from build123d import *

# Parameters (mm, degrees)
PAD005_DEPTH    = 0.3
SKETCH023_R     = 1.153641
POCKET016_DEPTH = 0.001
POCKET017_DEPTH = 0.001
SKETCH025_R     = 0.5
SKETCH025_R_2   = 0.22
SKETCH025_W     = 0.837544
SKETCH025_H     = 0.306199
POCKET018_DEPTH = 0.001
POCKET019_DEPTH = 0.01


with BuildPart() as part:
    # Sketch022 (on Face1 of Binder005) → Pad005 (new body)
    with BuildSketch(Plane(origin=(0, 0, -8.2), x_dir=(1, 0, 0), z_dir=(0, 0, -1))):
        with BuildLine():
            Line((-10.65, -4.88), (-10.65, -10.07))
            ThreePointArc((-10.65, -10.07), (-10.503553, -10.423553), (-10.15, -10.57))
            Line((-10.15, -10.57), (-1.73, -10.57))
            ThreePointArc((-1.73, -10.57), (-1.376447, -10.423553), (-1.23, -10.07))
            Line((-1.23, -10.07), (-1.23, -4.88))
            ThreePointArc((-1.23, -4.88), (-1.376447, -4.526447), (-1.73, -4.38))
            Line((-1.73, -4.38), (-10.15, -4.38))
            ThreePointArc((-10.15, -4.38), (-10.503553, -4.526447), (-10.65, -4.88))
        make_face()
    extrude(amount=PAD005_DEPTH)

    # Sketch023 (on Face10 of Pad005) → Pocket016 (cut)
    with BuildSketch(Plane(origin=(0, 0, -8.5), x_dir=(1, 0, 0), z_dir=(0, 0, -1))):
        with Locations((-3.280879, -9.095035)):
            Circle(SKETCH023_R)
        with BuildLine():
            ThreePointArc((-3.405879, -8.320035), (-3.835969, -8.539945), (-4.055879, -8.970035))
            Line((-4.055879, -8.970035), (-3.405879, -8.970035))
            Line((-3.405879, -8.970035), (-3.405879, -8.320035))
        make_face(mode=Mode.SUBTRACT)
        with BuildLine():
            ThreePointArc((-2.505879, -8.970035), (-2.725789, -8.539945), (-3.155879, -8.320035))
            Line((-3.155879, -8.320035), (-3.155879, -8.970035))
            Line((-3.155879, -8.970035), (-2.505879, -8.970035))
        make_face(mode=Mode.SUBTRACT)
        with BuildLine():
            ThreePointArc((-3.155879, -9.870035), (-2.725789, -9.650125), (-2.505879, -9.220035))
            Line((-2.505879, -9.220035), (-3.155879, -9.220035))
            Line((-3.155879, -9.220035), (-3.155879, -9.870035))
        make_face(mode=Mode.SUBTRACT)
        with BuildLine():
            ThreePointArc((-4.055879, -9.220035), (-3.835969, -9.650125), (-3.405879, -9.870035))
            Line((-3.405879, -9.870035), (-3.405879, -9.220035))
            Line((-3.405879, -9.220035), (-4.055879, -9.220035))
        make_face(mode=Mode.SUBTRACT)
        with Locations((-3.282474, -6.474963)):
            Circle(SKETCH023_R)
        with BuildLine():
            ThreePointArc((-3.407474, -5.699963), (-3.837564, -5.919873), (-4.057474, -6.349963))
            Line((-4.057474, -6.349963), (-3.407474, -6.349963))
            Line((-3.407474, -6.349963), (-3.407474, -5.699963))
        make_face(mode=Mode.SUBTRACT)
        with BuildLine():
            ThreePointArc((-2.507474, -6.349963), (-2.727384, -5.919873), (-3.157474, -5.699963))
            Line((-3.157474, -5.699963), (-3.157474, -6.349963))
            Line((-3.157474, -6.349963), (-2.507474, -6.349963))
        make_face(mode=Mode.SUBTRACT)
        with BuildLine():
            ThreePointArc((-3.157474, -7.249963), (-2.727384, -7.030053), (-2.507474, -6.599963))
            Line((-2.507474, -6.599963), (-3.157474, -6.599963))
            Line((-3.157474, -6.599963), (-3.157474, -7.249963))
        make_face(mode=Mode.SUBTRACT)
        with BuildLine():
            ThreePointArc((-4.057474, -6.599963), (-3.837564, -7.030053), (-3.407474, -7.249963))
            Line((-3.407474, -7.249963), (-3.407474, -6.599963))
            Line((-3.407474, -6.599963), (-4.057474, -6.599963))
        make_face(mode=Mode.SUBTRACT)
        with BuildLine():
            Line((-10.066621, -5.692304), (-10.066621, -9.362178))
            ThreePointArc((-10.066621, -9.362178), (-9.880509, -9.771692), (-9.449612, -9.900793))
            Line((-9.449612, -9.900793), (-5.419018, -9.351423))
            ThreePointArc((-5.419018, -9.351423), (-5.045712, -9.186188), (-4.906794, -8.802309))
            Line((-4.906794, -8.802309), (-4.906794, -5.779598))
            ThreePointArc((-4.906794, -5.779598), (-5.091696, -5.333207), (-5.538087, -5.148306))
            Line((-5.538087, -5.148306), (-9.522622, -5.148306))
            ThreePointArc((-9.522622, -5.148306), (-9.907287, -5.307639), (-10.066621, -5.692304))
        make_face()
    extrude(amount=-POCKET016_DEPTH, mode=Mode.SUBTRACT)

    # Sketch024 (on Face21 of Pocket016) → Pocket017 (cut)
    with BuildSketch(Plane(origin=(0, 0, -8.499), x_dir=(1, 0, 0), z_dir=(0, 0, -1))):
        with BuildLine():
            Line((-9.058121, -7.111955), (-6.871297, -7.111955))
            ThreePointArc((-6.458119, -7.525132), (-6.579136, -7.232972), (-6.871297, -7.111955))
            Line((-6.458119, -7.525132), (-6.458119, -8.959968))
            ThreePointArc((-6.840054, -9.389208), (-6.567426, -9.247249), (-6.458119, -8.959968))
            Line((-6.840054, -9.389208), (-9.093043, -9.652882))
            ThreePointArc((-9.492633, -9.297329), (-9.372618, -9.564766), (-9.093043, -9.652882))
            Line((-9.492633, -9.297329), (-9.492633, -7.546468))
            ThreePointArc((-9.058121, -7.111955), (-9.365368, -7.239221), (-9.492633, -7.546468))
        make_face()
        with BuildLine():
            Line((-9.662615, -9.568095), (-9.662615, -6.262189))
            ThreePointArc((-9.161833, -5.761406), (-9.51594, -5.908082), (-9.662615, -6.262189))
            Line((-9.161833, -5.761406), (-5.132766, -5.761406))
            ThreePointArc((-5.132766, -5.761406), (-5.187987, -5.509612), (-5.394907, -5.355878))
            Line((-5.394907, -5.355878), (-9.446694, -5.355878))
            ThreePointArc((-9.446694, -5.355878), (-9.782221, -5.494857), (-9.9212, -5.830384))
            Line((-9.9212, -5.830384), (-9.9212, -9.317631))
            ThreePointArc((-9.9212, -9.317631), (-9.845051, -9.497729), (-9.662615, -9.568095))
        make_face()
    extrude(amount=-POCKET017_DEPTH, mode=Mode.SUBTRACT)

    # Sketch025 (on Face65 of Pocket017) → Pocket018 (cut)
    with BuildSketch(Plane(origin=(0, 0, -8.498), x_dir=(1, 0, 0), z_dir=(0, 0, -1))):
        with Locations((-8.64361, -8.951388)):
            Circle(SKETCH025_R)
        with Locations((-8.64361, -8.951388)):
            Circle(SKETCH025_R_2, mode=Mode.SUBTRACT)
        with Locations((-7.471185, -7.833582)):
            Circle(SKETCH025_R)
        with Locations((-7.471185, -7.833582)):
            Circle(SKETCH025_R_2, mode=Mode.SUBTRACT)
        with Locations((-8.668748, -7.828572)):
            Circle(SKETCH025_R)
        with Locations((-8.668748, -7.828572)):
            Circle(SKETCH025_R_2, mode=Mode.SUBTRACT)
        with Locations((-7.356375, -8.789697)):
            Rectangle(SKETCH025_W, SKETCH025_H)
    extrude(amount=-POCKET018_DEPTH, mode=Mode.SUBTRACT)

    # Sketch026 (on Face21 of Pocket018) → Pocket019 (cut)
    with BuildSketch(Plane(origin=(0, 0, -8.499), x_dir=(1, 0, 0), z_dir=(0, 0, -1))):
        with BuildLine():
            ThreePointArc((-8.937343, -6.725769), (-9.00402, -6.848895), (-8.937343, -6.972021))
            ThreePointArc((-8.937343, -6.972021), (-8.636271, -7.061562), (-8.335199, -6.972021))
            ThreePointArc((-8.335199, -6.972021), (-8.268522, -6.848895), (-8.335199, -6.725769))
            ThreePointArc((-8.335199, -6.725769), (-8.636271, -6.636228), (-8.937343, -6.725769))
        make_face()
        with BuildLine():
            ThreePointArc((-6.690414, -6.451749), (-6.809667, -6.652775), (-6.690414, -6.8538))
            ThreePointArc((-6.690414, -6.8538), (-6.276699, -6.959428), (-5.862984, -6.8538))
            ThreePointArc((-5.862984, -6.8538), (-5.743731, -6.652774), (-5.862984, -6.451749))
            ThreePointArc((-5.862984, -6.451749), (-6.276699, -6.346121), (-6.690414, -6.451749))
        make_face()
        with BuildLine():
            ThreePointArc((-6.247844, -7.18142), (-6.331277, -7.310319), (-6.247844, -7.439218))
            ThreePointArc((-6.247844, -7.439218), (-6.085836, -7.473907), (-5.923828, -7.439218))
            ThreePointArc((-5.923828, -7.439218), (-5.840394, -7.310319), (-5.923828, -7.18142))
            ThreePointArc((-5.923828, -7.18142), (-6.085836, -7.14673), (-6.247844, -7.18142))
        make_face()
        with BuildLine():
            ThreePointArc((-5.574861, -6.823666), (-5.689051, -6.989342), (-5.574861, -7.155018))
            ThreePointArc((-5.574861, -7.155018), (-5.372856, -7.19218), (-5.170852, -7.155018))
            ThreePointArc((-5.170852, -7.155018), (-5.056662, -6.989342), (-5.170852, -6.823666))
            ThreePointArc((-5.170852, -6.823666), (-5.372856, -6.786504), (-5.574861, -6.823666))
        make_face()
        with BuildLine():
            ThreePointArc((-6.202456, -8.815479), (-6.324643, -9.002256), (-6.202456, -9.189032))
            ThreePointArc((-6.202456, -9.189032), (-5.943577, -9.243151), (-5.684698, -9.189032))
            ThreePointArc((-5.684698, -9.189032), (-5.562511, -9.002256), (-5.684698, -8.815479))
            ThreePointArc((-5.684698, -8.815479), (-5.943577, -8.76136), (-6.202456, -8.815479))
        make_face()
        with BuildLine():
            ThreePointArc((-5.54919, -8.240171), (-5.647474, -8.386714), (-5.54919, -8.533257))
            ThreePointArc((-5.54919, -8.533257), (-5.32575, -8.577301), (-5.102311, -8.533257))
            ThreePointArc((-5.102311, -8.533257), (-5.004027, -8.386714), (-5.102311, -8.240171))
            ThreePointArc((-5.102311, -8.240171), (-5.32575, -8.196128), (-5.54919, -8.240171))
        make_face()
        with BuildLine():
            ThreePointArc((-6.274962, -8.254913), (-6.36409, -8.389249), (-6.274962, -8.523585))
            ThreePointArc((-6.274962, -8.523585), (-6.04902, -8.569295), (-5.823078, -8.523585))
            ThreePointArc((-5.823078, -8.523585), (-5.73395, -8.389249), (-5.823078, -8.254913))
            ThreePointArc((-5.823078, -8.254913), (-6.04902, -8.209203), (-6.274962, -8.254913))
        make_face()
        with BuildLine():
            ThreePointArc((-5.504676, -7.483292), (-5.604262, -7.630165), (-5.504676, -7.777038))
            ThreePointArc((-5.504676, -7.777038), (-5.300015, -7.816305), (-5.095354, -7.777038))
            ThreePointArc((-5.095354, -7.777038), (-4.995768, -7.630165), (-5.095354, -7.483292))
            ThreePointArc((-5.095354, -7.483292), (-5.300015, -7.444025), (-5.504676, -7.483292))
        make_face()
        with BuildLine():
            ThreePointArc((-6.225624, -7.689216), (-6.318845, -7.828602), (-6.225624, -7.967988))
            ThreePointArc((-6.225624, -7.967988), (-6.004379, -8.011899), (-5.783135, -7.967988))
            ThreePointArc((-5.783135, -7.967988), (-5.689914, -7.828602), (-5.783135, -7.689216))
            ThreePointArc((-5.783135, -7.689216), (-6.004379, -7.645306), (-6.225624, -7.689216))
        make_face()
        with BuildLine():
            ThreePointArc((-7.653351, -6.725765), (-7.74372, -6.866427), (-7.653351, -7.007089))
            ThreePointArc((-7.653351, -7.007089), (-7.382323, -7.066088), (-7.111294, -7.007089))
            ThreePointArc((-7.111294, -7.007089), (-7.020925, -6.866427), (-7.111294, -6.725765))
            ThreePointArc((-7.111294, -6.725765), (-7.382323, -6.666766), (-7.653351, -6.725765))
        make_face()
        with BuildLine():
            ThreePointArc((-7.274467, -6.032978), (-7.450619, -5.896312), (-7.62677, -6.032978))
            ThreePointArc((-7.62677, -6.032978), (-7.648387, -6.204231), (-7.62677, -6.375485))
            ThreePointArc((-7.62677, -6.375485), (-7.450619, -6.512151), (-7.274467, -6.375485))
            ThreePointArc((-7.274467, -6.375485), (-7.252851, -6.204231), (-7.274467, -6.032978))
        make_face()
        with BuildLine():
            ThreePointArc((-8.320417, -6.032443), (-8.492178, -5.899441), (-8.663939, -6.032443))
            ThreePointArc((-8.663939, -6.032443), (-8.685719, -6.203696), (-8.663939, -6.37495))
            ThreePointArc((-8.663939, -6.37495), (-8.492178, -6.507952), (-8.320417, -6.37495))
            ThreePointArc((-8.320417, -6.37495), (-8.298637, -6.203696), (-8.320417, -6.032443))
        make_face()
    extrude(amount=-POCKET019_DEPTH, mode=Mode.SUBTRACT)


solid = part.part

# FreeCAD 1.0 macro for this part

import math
import FreeCAD as App
import Part
import Sketcher

V = App.Vector
Q = App.Units.Quantity

doc = App.newDocument("Part")
body = doc.addObject("PartDesign::Body", "Body")

sketch1 = doc.addObject("Sketcher::SketchObject", "Sketch")
body.addObject(sketch1)
sketch1.AttachmentSupport = (doc.XY_Plane, [""])
sketch1.MapMode = "FlatFace"
sketch1.AttachmentOffset = App.Placement(V(0, 0, -8.2), App.Rotation())
sketch1.addGeometry([
    Part.LineSegment(V(-10.7, 4.9, 0), V(-10.7, 10.1, 0)),
    Part.ArcOfCircle(Part.Circle(V(-10.1, 10.1, 0), V(0, 0, 1), 0.5), math.radians(90), math.radians(180)),
    Part.LineSegment(V(-10.2, 10.6, 0), V(-1.7, 10.6, 0)),
    Part.ArcOfCircle(Part.Circle(V(-1.7, 10.1, 0), V(0, 0, 1), 0.5), math.radians(0), math.radians(90)),
    Part.LineSegment(V(-1.2, 10.1, 0), V(-1.2, 4.9, 0)),
    Part.ArcOfCircle(Part.Circle(V(-1.7, 4.9, 0), V(0, 0, 1), 0.5), math.radians(-90), math.radians(0)),
    Part.LineSegment(V(-1.7, 4.4, 0), V(-10.2, 4.4, 0)),
    Part.ArcOfCircle(Part.Circle(V(-10.1, 4.9, 0), V(0, 0, 1), 0.5), math.radians(-180), math.radians(-90)),
], False)
sketch1.addConstraint([
    Sketcher.Constraint("Coincident", 0, 2, 1, 2),
    Sketcher.Constraint("Coincident", 1, 1, 2, 1),
    Sketcher.Constraint("Coincident", 2, 2, 3, 2),
    Sketcher.Constraint("Coincident", 3, 1, 4, 1),
    Sketcher.Constraint("Coincident", 4, 2, 5, 2),
    Sketcher.Constraint("Coincident", 5, 1, 6, 1),
    Sketcher.Constraint("Coincident", 6, 2, 7, 2),
    Sketcher.Constraint("Coincident", 7, 1, 0, 1),
    Sketcher.Constraint("Vertical", 0),
    Sketcher.Constraint("Horizontal", 2),
    Sketcher.Constraint("Vertical", 4),
    Sketcher.Constraint("Horizontal", 6),
    Sketcher.Constraint("Equal", 1, 3),
    Sketcher.Constraint("Equal", 3, 5),
    Sketcher.Constraint("Equal", 5, 7),
    Sketcher.Constraint("Horizontal", 3, 3, 0, 2),
    Sketcher.Constraint("Horizontal", 0, 2, 3, 1),
    Sketcher.Constraint("Horizontal", 7, 3, 4, 2),
    Sketcher.Constraint("Horizontal", 4, 2, 7, 1),
    Sketcher.Constraint("Vertical", 7, 3, 1, 1),
    Sketcher.Constraint("Vertical", 5, 3, 2, 2),
    Sketcher.Constraint("Vertical", 2, 2, 5, 1),
    Sketcher.Constraint("Vertical", 1, 1, 6, 2),
    Sketcher.Constraint("Radius", 1, Q("0.500001 mm")),
    Sketcher.Constraint("DistanceX", 2, 1, 2, 2, Q("8.42 mm")),
    Sketcher.Constraint("DistanceY", 0, 1, 0, 2, Q("5.19 mm")),
    Sketcher.Constraint("DistanceX", 1, 3, -1, 1, Q("10.149999 mm")),
    Sketcher.Constraint("DistanceY", -1, 1, 1, 3, Q("10.069999 mm")),
])
pad1 = doc.addObject("PartDesign::Pad", "Pad")
body.addObject(pad1)
pad1.Profile = sketch1
pad1.Length = 0.3
pad1.Reversed = True

sketch2 = doc.addObject("Sketcher::SketchObject", "Sketch001")
body.addObject(sketch2)
sketch2.AttachmentSupport = (doc.XY_Plane, [""])
sketch2.MapMode = "FlatFace"
sketch2.AttachmentOffset = App.Placement(V(0, 0, -8.5), App.Rotation())
sketch2.addGeometry([
    Part.Circle(V(-3.3, 9.1, 0), V(0, 0, 1), 1.2),
    Part.ArcOfCircle(Part.Circle(V(-3.3, 9.1, 0), V(0, 0, 1), 0.8), math.radians(99), math.radians(171)),
    Part.LineSegment(V(-4.1, 9.2, 0), V(-3.4, 9.2, 0)),
    Part.LineSegment(V(-3.4, 9.2, 0), V(-3.4, 9.9, 0)),
    Part.ArcOfCircle(Part.Circle(V(-3.3, 9.1, 0), V(0, 0, 1), 0.8), math.radians(9), math.radians(81)),
    Part.LineSegment(V(-3.2, 9.9, 0), V(-3.2, 9.2, 0)),
    Part.LineSegment(V(-3.2, 9.2, 0), V(-2.5, 9.2, 0)),
    Part.ArcOfCircle(Part.Circle(V(-3.3, 9.1, 0), V(0, 0, 1), 0.8), math.radians(-171), math.radians(-99)),
    Part.LineSegment(V(-3.4, 8.3, 0), V(-3.4, 9, 0)),
    Part.LineSegment(V(-3.4, 9, 0), V(-4.1, 9, 0)),
    Part.ArcOfCircle(Part.Circle(V(-3.3, 9.1, 0), V(0, 0, 1), 0.8), math.radians(-81), math.radians(-9)),
    Part.LineSegment(V(-2.5, 9, 0), V(-3.2, 9, 0)),
    Part.LineSegment(V(-3.2, 9, 0), V(-3.2, 8.3, 0)),
    Part.Circle(V(-3.3, 6.5, 0), V(0, 0, 1), 1.2),
    Part.ArcOfCircle(Part.Circle(V(-3.3, 6.5, 0), V(0, 0, 1), 0.8), math.radians(99), math.radians(171)),
    Part.LineSegment(V(-4.1, 6.6, 0), V(-3.4, 6.6, 0)),
    Part.LineSegment(V(-3.4, 6.6, 0), V(-3.4, 7.2, 0)),
    Part.ArcOfCircle(Part.Circle(V(-3.3, 6.5, 0), V(0, 0, 1), 0.8), math.radians(9), math.radians(81)),
    Part.LineSegment(V(-3.2, 7.2, 0), V(-3.2, 6.6, 0)),
    Part.LineSegment(V(-3.2, 6.6, 0), V(-2.5, 6.6, 0)),
    Part.ArcOfCircle(Part.Circle(V(-3.3, 6.5, 0), V(0, 0, 1), 0.8), math.radians(-171), math.radians(-99)),
    Part.LineSegment(V(-3.4, 5.7, 0), V(-3.4, 6.3, 0)),
    Part.LineSegment(V(-3.4, 6.3, 0), V(-4.1, 6.3, 0)),
    Part.ArcOfCircle(Part.Circle(V(-3.3, 6.5, 0), V(0, 0, 1), 0.8), math.radians(-81), math.radians(-9)),
    Part.LineSegment(V(-2.5, 6.3, 0), V(-3.2, 6.3, 0)),
    Part.LineSegment(V(-3.2, 6.3, 0), V(-3.2, 5.7, 0)),
    Part.LineSegment(V(-10.1, 5.7, 0), V(-10.1, 9.4, 0)),
    Part.ArcOfCircle(Part.Circle(V(-9.5, 9.4, 0), V(0, 0, 1), 0.5), math.radians(82), math.radians(180)),
    Part.LineSegment(V(-9.4, 9.9, 0), V(-5.4, 9.4, 0)),
    Part.ArcOfCircle(Part.Circle(V(-5.4, 8.8, 0), V(0, 0, 1), 0.5), math.radians(-3), math.radians(89)),
    Part.LineSegment(V(-4.9, 8.8, 0), V(-4.9, 5.8, 0)),
    Part.ArcOfCircle(Part.Circle(V(-5.5, 5.8, 0), V(0, 0, 1), 0.6), math.radians(-90), math.radians(0)),
    Part.LineSegment(V(-5.5, 5.1, 0), V(-9.5, 5.1, 0)),
    Part.ArcOfCircle(Part.Circle(V(-9.5, 5.7, 0), V(0, 0, 1), 0.5), math.radians(-180), math.radians(-90)),
], False)
sketch2.addConstraint([
    Sketcher.Constraint("Coincident", 1, 2, 2, 1),
    Sketcher.Constraint("Coincident", 2, 2, 3, 1),
    Sketcher.Constraint("Coincident", 3, 2, 1, 1),
    Sketcher.Constraint("Coincident", 4, 2, 5, 1),
    Sketcher.Constraint("Coincident", 5, 2, 6, 1),
    Sketcher.Constraint("Coincident", 6, 2, 4, 1),
    Sketcher.Constraint("Coincident", 7, 2, 8, 1),
    Sketcher.Constraint("Coincident", 8, 2, 9, 1),
    Sketcher.Constraint("Coincident", 9, 2, 7, 1),
    Sketcher.Constraint("Coincident", 10, 2, 11, 1),
    Sketcher.Constraint("Coincident", 11, 2, 12, 1),
    Sketcher.Constraint("Coincident", 12, 2, 10, 1),
    Sketcher.Constraint("Coincident", 14, 2, 15, 1),
    Sketcher.Constraint("Coincident", 15, 2, 16, 1),
    Sketcher.Constraint("Coincident", 16, 2, 14, 1),
    Sketcher.Constraint("Coincident", 17, 2, 18, 1),
    Sketcher.Constraint("Coincident", 18, 2, 19, 1),
    Sketcher.Constraint("Coincident", 19, 2, 17, 1),
    Sketcher.Constraint("Coincident", 20, 2, 21, 1),
    Sketcher.Constraint("Coincident", 21, 2, 22, 1),
    Sketcher.Constraint("Coincident", 22, 2, 20, 1),
    Sketcher.Constraint("Coincident", 23, 2, 24, 1),
    Sketcher.Constraint("Coincident", 24, 2, 25, 1),
    Sketcher.Constraint("Coincident", 25, 2, 23, 1),
    Sketcher.Constraint("Tangent", 26, 2, 27, 2),
    Sketcher.Constraint("Tangent", 27, 1, 28, 1),
    Sketcher.Constraint("Coincident", 28, 2, 29, 2),
    Sketcher.Constraint("Coincident", 29, 1, 30, 1),
    Sketcher.Constraint("Tangent", 30, 2, 31, 2),
    Sketcher.Constraint("Tangent", 31, 1, 32, 1),
    Sketcher.Constraint("Tangent", 32, 2, 33, 2),
    Sketcher.Constraint("Tangent", 33, 1, 26, 1),
    Sketcher.Constraint("Horizontal", 2),
    Sketcher.Constraint("Vertical", 3),
    Sketcher.Constraint("Vertical", 5),
    Sketcher.Constraint("Horizontal", 6),
    Sketcher.Constraint("Vertical", 8),
    Sketcher.Constraint("Horizontal", 9),
    Sketcher.Constraint("Horizontal", 11),
    Sketcher.Constraint("Vertical", 12),
    Sketcher.Constraint("Horizontal", 15),
    Sketcher.Constraint("Vertical", 16),
    Sketcher.Constraint("Vertical", 18),
    Sketcher.Constraint("Horizontal", 19),
    Sketcher.Constraint("Vertical", 21),
    Sketcher.Constraint("Horizontal", 22),
    Sketcher.Constraint("Horizontal", 24),
    Sketcher.Constraint("Vertical", 25),
    Sketcher.Constraint("Vertical", 26),
    Sketcher.Constraint("Vertical", 30),
    Sketcher.Constraint("Horizontal", 32),
    Sketcher.Constraint("Coincident", 1, 3, 0, 3),
    Sketcher.Constraint("Coincident", 4, 3, 0, 3),
    Sketcher.Constraint("Coincident", 7, 3, 0, 3),
    Sketcher.Constraint("Coincident", 10, 3, 0, 3),
    Sketcher.Constraint("Coincident", 14, 3, 13, 3),
    Sketcher.Constraint("Coincident", 17, 3, 13, 3),
    Sketcher.Constraint("Coincident", 20, 3, 13, 3),
    Sketcher.Constraint("Coincident", 23, 3, 13, 3),
    Sketcher.Constraint("Equal", 1, 4),
    Sketcher.Constraint("Equal", 4, 7),
    Sketcher.Constraint("Equal", 7, 10),
    Sketcher.Constraint("Equal", 0, 13),
    Sketcher.Constraint("Equal", 10, 14),
    Sketcher.Constraint("Equal", 14, 17),
    Sketcher.Constraint("Equal", 17, 20),
    Sketcher.Constraint("Equal", 20, 23),
    Sketcher.Constraint("Horizontal", 3, 2, 4, 2),
    Sketcher.Constraint("Horizontal", 2, 2, 5, 2),
    Sketcher.Constraint("Horizontal", 9, 2, 10, 2),
    Sketcher.Constraint("Horizontal", 7, 2, 12, 2),
    Sketcher.Constraint("Horizontal", 16, 2, 17, 2),
    Sketcher.Constraint("Horizontal", 15, 2, 18, 2),
    Sketcher.Constraint("Horizontal", 22, 2, 23, 2),
    Sketcher.Constraint("Horizontal", 20, 2, 25, 2),
    Sketcher.Constraint("Vertical", 3, 2, 7, 2),
    Sketcher.Constraint("Vertical", 1, 2, 9, 2),
    Sketcher.Constraint("Vertical", 16, 2, 20, 2),
    Sketcher.Constraint("Vertical", 14, 2, 22, 2),
    Sketcher.Constraint("Equal", 11, 15),
    Sketcher.Constraint("Equal", 24, 3),
    Sketcher.Constraint("Equal", 12, 16),
    Sketcher.Constraint("Radius", 33, Q("0.543999 mm")),
    Sketcher.Constraint("DistanceX", 2, 1, 2, 2, Q("0.65 mm")),
    Sketcher.Constraint("Diameter", 0, Q("2.307282 mm")),
    Sketcher.Constraint("DistanceX", 3, 2, 4, 2, Q("0.25 mm")),
    Sketcher.Constraint("Radius", 27, Q("0.543595 mm")),
    Sketcher.Constraint("Radius", 29, Q("0.519945 mm")),
    Sketcher.Constraint("Radius", 31, Q("0.631293 mm")),
    Sketcher.Constraint("DistanceY", 30, 2, 30, 1, Q("3.022711 mm")),
    Sketcher.Constraint("DistanceY", -1, 1, 31, 3, Q("5.779599 mm")),
    Sketcher.Constraint("DistanceX", 29, 3, 28, 2, Q("0.006899 mm")),
    Sketcher.Constraint("Distance", 28, Q("4.067861 mm")),
    Sketcher.Constraint("DistanceX", 32, 2, 32, 1, Q("3.984535 mm")),
    Sketcher.Constraint("DistanceY", 26, 1, 26, 2, Q("3.669874 mm")),
    Sketcher.Constraint("DistanceX", 0, 3, -1, 1, Q("3.280879 mm")),
    Sketcher.Constraint("DistanceX", 26, 2, -1, 1, Q("10.066621 mm")),
    Sketcher.Constraint("DistanceY", 13, 3, 4, 3, Q("2.620072 mm")),
    Sketcher.Constraint("DistanceY", 29, 3, 4, 3, Q("0.26351 mm")),
    Sketcher.Constraint("DistanceX", 30, 2, 22, 2, Q("0.84932 mm")),
])
pocket1 = doc.addObject("PartDesign::Pocket", "Pocket")
body.addObject(pocket1)
pocket1.Profile = sketch2
pocket1.Length = 0.001
pocket1.Reversed = True

sketch3 = doc.addObject("Sketcher::SketchObject", "Sketch002")
body.addObject(sketch3)
sketch3.AttachmentSupport = (doc.XY_Plane, [""])
sketch3.MapMode = "FlatFace"
sketch3.AttachmentOffset = App.Placement(V(0, 0, -8.499), App.Rotation())
sketch3.addGeometry([
    Part.LineSegment(V(-6.87, 7.11, 0), V(-9.06, 7.11, 0)),
    Part.ArcOfCircle(Part.Circle(V(-9.06, 7.55, 0), V(0, 0, 1), 0.43), math.radians(180), math.radians(270)),
    Part.LineSegment(V(-9.49, 7.55, 0), V(-9.49, 9.3, 0)),
    Part.ArcOfCircle(Part.Circle(V(-9.13, 9.3, 0), V(0, 0, 1), 0.36), math.radians(83), math.radians(180)),
    Part.LineSegment(V(-9.09, 9.65, 0), V(-6.84, 9.39, 0)),
    Part.ArcOfCircle(Part.Circle(V(-6.89, 8.96, 0), V(0, 0, 1), 0.43), math.radians(0), math.radians(83)),
    Part.LineSegment(V(-6.46, 8.96, 0), V(-6.46, 7.53, 0)),
    Part.ArcOfCircle(Part.Circle(V(-6.87, 7.53, 0), V(0, 0, 1), 0.41), math.radians(-90), math.radians(0)),
    Part.LineSegment(V(-9.66, 9.57, 0), V(-9.66, 6.26, 0)),
    Part.ArcOfCircle(Part.Circle(V(-9.16, 6.26, 0), V(0, 0, 1), 0.5), math.radians(180), math.radians(270)),
    Part.LineSegment(V(-9.16, 5.76, 0), V(-5.13, 5.76, 0)),
    Part.ArcOfCircle(Part.Circle(V(-5.5, 5.71, 0), V(0, 0, 1), 0.37), math.radians(-74), math.radians(8)),
    Part.LineSegment(V(-5.39, 5.36, 0), V(-9.45, 5.36, 0)),
    Part.ArcOfCircle(Part.Circle(V(-9.45, 5.83, 0), V(0, 0, 1), 0.47), math.radians(180), math.radians(270)),
    Part.LineSegment(V(-9.92, 5.83, 0), V(-9.92, 9.32, 0)),
    Part.ArcOfCircle(Part.Circle(V(-9.67, 9.32, 0), V(0, 0, 1), 0.25), math.radians(88), math.radians(180)),
], False)
sketch3.addConstraint([
    Sketcher.Constraint("Tangent", 0, 2, 1, 2),
    Sketcher.Constraint("Coincident", 1, 1, 2, 1),
    Sketcher.Constraint("Coincident", 2, 2, 3, 2),
    Sketcher.Constraint("Tangent", 3, 1, 4, 1),
    Sketcher.Constraint("Coincident", 4, 2, 5, 2),
    Sketcher.Constraint("Tangent", 5, 1, 6, 1),
    Sketcher.Constraint("Coincident", 6, 2, 7, 2),
    Sketcher.Constraint("Tangent", 7, 1, 0, 1),
    Sketcher.Constraint("Coincident", 8, 2, 9, 1),
    Sketcher.Constraint("Tangent", 9, 2, 10, 1),
    Sketcher.Constraint("Coincident", 10, 2, 11, 2),
    Sketcher.Constraint("Coincident", 11, 1, 12, 1),
    Sketcher.Constraint("Coincident", 12, 2, 13, 2),
    Sketcher.Constraint("Coincident", 13, 1, 14, 1),
    Sketcher.Constraint("Coincident", 14, 2, 15, 2),
    Sketcher.Constraint("Coincident", 15, 1, 8, 1),
    Sketcher.Constraint("Horizontal", 0),
    Sketcher.Constraint("Vertical", 2),
    Sketcher.Constraint("Vertical", 6),
    Sketcher.Constraint("Vertical", 8),
    Sketcher.Constraint("Horizontal", 10),
    Sketcher.Constraint("Horizontal", 12),
    Sketcher.Constraint("Vertical", 14),
    Sketcher.Constraint("Horizontal", 3, 3, 2, 2),
    Sketcher.Constraint("Horizontal", 7, 3, 6, 2),
    Sketcher.Constraint("Horizontal", 9, 3, 8, 2),
    Sketcher.Constraint("Radius", 1, Q("0.434512 mm")),
    Sketcher.Constraint("Radius", 3, Q("0.357979 mm")),
    Sketcher.Constraint("Radius", 5, Q("0.432169 mm")),
    Sketcher.Constraint("Radius", 9, Q("0.500781 mm")),
    Sketcher.Constraint("Radius", 11, Q("0.367871 mm")),
    Sketcher.Constraint("Radius", 7, Q("0.413178 mm")),
    Sketcher.Constraint("Radius", 13, Q("0.474504 mm")),
    Sketcher.Constraint("Radius", 15, Q("0.250276 mm")),
    Sketcher.Constraint("DistanceY", 2, 1, 2, 2, Q("1.750861 mm")),
    Sketcher.Constraint("DistanceX", 13, 1, -1, 1, Q("9.9212 mm")),
    Sketcher.Constraint("DistanceY", 1, 3, 5, 3, Q("1.413502 mm")),
    Sketcher.Constraint("DistanceX", 13, 3, 7, 3, Q("2.575399 mm")),
    Sketcher.Constraint("DistanceX", 1, 1, 9, 3, Q("0.330799 mm")),
    Sketcher.Constraint("DistanceX", 3, 3, 4, 2, Q("2.2946 mm")),
    Sketcher.Constraint("DistanceY", 3, 3, 14, 2, Q("0.020301 mm")),
    Sketcher.Constraint("DistanceX", 0, 2, 0, 1, Q("2.186824 mm")),
    Sketcher.Constraint("DistanceX", 10, 1, 10, 2, Q("4.029067 mm")),
    Sketcher.Constraint("DistanceX", 12, 2, 12, 1, Q("4.051787 mm")),
    Sketcher.Constraint("DistanceY", 8, 2, 8, 1, Q("3.305906 mm")),
    Sketcher.Constraint("DistanceY", 14, 1, 14, 2, Q("3.487247 mm")),
    Sketcher.Constraint("DistanceY", -1, 1, 3, 3, Q("9.29733 mm")),
    Sketcher.Constraint("DistanceY", -1, 1, 5, 3, Q("8.959968 mm")),
    Sketcher.Constraint("DistanceX", 11, 3, -1, 1, Q("5.496931 mm")),
    Sketcher.Constraint("DistanceY", -1, 1, 11, 3, Q("5.709319 mm")),
    Sketcher.Constraint("DistanceY", -1, 1, 13, 3, Q("5.830382 mm")),
])
pocket2 = doc.addObject("PartDesign::Pocket", "Pocket001")
body.addObject(pocket2)
pocket2.Profile = sketch3
pocket2.Length = 0.001
pocket2.Reversed = True

sketch4 = doc.addObject("Sketcher::SketchObject", "Sketch003")
body.addObject(sketch4)
sketch4.AttachmentSupport = (doc.XY_Plane, [""])
sketch4.MapMode = "FlatFace"
sketch4.AttachmentOffset = App.Placement(V(0, 0, -8.498), App.Rotation())
sketch4.addGeometry([
    Part.Circle(V(-8.64, 8.95, 0), V(0, 0, 1), 0.5),
    Part.Circle(V(-8.64, 8.95, 0), V(0, 0, 1), 0.22),
    Part.Circle(V(-7.47, 7.83, 0), V(0, 0, 1), 0.5),
    Part.Circle(V(-7.47, 7.83, 0), V(0, 0, 1), 0.22),
    Part.Circle(V(-8.67, 7.83, 0), V(0, 0, 1), 0.5),
    Part.Circle(V(-8.67, 7.83, 0), V(0, 0, 1), 0.22),
    Part.LineSegment(V(-7.78, 8.64, 0), V(-7.78, 8.94, 0)),
    Part.LineSegment(V(-7.78, 8.94, 0), V(-6.94, 8.94, 0)),
    Part.LineSegment(V(-6.94, 8.94, 0), V(-6.94, 8.64, 0)),
    Part.LineSegment(V(-6.94, 8.64, 0), V(-7.78, 8.64, 0)),
], False)
sketch4.addConstraint([
    Sketcher.Constraint("Coincident", 6, 2, 7, 1),
    Sketcher.Constraint("Coincident", 7, 2, 8, 1),
    Sketcher.Constraint("Coincident", 8, 2, 9, 1),
    Sketcher.Constraint("Coincident", 9, 2, 6, 1),
    Sketcher.Constraint("Vertical", 6),
    Sketcher.Constraint("Horizontal", 7),
    Sketcher.Constraint("Vertical", 8),
    Sketcher.Constraint("Horizontal", 9),
    Sketcher.Constraint("Coincident", 1, 3, 0, 3),
    Sketcher.Constraint("Coincident", 3, 3, 2, 3),
    Sketcher.Constraint("Coincident", 5, 3, 4, 3),
    Sketcher.Constraint("Equal", 0, 2),
    Sketcher.Constraint("Equal", 1, 3),
    Sketcher.Constraint("Equal", 2, 4),
    Sketcher.Constraint("Equal", 3, 5),
    Sketcher.Constraint("Diameter", 0, Q("1 mm")),
    Sketcher.Constraint("Diameter", 1, Q("0.44 mm")),
    Sketcher.Constraint("DistanceY", 6, 1, 6, 2, Q("0.306199 mm")),
    Sketcher.Constraint("DistanceX", 4, 3, 6, 2, Q("0.893601 mm")),
    Sketcher.Constraint("DistanceX", 7, 1, 7, 2, Q("0.837544 mm")),
    Sketcher.Constraint("DistanceX", 0, 3, -1, 1, Q("8.64361 mm")),
    Sketcher.Constraint("DistanceY", -1, 1, 2, 3, Q("7.833582 mm")),
    Sketcher.Constraint("DistanceX", 4, 3, -1, 1, Q("8.668748 mm")),
    Sketcher.Constraint("DistanceY", 4, 3, 2, 3, Q("0.00501 mm")),
    Sketcher.Constraint("DistanceY", 6, 2, 0, 3, Q("0.008591 mm")),
    Sketcher.Constraint("DistanceX", 6, 2, 2, 3, Q("0.303962 mm")),
    Sketcher.Constraint("DistanceY", -1, 1, 0, 3, Q("8.951388 mm")),
])
pocket3 = doc.addObject("PartDesign::Pocket", "Pocket002")
body.addObject(pocket3)
pocket3.Profile = sketch4
pocket3.Length = 0.001
pocket3.Reversed = True

sketch5 = doc.addObject("Sketcher::SketchObject", "Sketch004")
body.addObject(sketch5)
sketch5.AttachmentSupport = (doc.XY_Plane, [""])
sketch5.MapMode = "FlatFace"
sketch5.AttachmentOffset = App.Placement(V(0, 0, -8.499), App.Rotation())
sketch5.addGeometry([
    Part.ArcOfCircle(Part.Circle(V(-8.86, 6.85, 0), V(0, 0, 1), 0.15), math.radians(123), math.radians(237)),
    Part.ArcOfCircle(Part.Circle(V(-8.64, 6.51, 0), V(0, 0, 1), 0.55), math.radians(57), math.radians(123)),
    Part.ArcOfCircle(Part.Circle(V(-8.42, 6.85, 0), V(0, 0, 1), 0.15), math.radians(-57), math.radians(57)),
    Part.ArcOfCircle(Part.Circle(V(-8.64, 7.19, 0), V(0, 0, 1), 0.55), math.radians(-123), math.radians(-57)),
    Part.ArcOfCircle(Part.Circle(V(-6.58, 6.65, 0), V(0, 0, 1), 0.23), math.radians(119), math.radians(241)),
    Part.ArcOfCircle(Part.Circle(V(-6.28, 6.1, 0), V(0, 0, 1), 0.86), math.radians(61), math.radians(119)),
    Part.ArcOfCircle(Part.Circle(V(-5.97, 6.65, 0), V(0, 0, 1), 0.23), math.radians(-61), math.radians(61)),
    Part.ArcOfCircle(Part.Circle(V(-6.28, 7.21, 0), V(0, 0, 1), 0.86), math.radians(-119), math.radians(-61)),
    Part.ArcOfCircle(Part.Circle(V(-6.19, 7.31, 0), V(0, 0, 1), 0.14), math.radians(114), math.radians(246)),
    Part.ArcOfCircle(Part.Circle(V(-6.09, 7.08, 0), V(0, 0, 1), 0.4), math.radians(66), math.radians(114)),
    Part.ArcOfCircle(Part.Circle(V(-5.98, 7.31, 0), V(0, 0, 1), 0.14), math.radians(-66), math.radians(66)),
    Part.ArcOfCircle(Part.Circle(V(-6.09, 7.54, 0), V(0, 0, 1), 0.4), math.radians(-114), math.radians(-66)),
    Part.ArcOfCircle(Part.Circle(V(-5.51, 6.99, 0), V(0, 0, 1), 0.18), math.radians(111), math.radians(249)),
    Part.ArcOfCircle(Part.Circle(V(-5.37, 6.62, 0), V(0, 0, 1), 0.57), math.radians(69), math.radians(111)),
    Part.ArcOfCircle(Part.Circle(V(-5.23, 6.99, 0), V(0, 0, 1), 0.18), math.radians(-69), math.radians(69)),
    Part.ArcOfCircle(Part.Circle(V(-5.37, 7.35, 0), V(0, 0, 1), 0.57), math.radians(-111), math.radians(-69)),
    Part.ArcOfCircle(Part.Circle(V(-6.12, 9, 0), V(0, 0, 1), 0.2), math.radians(114), math.radians(246)),
    Part.ArcOfCircle(Part.Circle(V(-5.94, 8.6, 0), V(0, 0, 1), 0.65), math.radians(66), math.radians(114)),
    Part.ArcOfCircle(Part.Circle(V(-5.77, 9, 0), V(0, 0, 1), 0.2), math.radians(-66), math.radians(66)),
    Part.ArcOfCircle(Part.Circle(V(-5.94, 9.41, 0), V(0, 0, 1), 0.65), math.radians(-114), math.radians(-66)),
    Part.ArcOfCircle(Part.Circle(V(-5.49, 8.39, 0), V(0, 0, 1), 0.16), math.radians(112), math.radians(248)),
    Part.ArcOfCircle(Part.Circle(V(-5.33, 7.99, 0), V(0, 0, 1), 0.59), math.radians(68), math.radians(112)),
    Part.ArcOfCircle(Part.Circle(V(-5.16, 8.39, 0), V(0, 0, 1), 0.16), math.radians(-68), math.radians(68)),
    Part.ArcOfCircle(Part.Circle(V(-5.33, 8.78, 0), V(0, 0, 1), 0.59), math.radians(-112), math.radians(-68)),
    Part.ArcOfCircle(Part.Circle(V(-6.22, 8.39, 0), V(0, 0, 1), 0.15), math.radians(113), math.radians(247)),
    Part.ArcOfCircle(Part.Circle(V(-6.05, 7.99, 0), V(0, 0, 1), 0.58), math.radians(67), math.radians(113)),
    Part.ArcOfCircle(Part.Circle(V(-5.88, 8.39, 0), V(0, 0, 1), 0.15), math.radians(-67), math.radians(67)),
    Part.ArcOfCircle(Part.Circle(V(-6.05, 8.79, 0), V(0, 0, 1), 0.58), math.radians(-113), math.radians(-67)),
    Part.ArcOfCircle(Part.Circle(V(-5.45, 7.63, 0), V(0, 0, 1), 0.16), math.radians(112), math.radians(248)),
    Part.ArcOfCircle(Part.Circle(V(-5.3, 7.26, 0), V(0, 0, 1), 0.55), math.radians(68), math.radians(112)),
    Part.ArcOfCircle(Part.Circle(V(-5.15, 7.63, 0), V(0, 0, 1), 0.16), math.radians(-68), math.radians(68)),
    Part.ArcOfCircle(Part.Circle(V(-5.3, 8, 0), V(0, 0, 1), 0.55), math.radians(-112), math.radians(-68)),
    Part.ArcOfCircle(Part.Circle(V(-6.17, 7.83, 0), V(0, 0, 1), 0.15), math.radians(112), math.radians(248)),
    Part.ArcOfCircle(Part.Circle(V(-6, 7.43, 0), V(0, 0, 1), 0.58), math.radians(68), math.radians(112)),
    Part.ArcOfCircle(Part.Circle(V(-5.84, 7.83, 0), V(0, 0, 1), 0.15), math.radians(-68), math.radians(68)),
    Part.ArcOfCircle(Part.Circle(V(-6, 8.22, 0), V(0, 0, 1), 0.58), math.radians(-112), math.radians(-68)),
    Part.ArcOfCircle(Part.Circle(V(-7.59, 6.87, 0), V(0, 0, 1), 0.15), math.radians(115), math.radians(245)),
    Part.ArcOfCircle(Part.Circle(V(-7.38, 6.41, 0), V(0, 0, 1), 0.65), math.radians(65), math.radians(115)),
    Part.ArcOfCircle(Part.Circle(V(-7.18, 6.87, 0), V(0, 0, 1), 0.15), math.radians(-65), math.radians(65)),
    Part.ArcOfCircle(Part.Circle(V(-7.38, 7.32, 0), V(0, 0, 1), 0.65), math.radians(-115), math.radians(-65)),
    Part.ArcOfCircle(Part.Circle(V(-7.45, 6.08, 0), V(0, 0, 1), 0.18), math.radians(-166), math.radians(-14)),
    Part.ArcOfCircle(Part.Circle(V(-6.96, 6.2, 0), V(0, 0, 1), 0.69), math.radians(166), math.radians(194)),
    Part.ArcOfCircle(Part.Circle(V(-7.45, 6.33, 0), V(0, 0, 1), 0.18), math.radians(14), math.radians(166)),
    Part.ArcOfCircle(Part.Circle(V(-7.94, 6.2, 0), V(0, 0, 1), 0.69), math.radians(-14), math.radians(14)),
    Part.ArcOfCircle(Part.Circle(V(-8.49, 6.08, 0), V(0, 0, 1), 0.18), math.radians(-166), math.radians(-14)),
    Part.ArcOfCircle(Part.Circle(V(-8, 6.2, 0), V(0, 0, 1), 0.68), math.radians(166), math.radians(194)),
    Part.ArcOfCircle(Part.Circle(V(-8.49, 6.33, 0), V(0, 0, 1), 0.18), math.radians(14), math.radians(166)),
    Part.ArcOfCircle(Part.Circle(V(-8.98, 6.2, 0), V(0, 0, 1), 0.68), math.radians(-14), math.radians(14)),
], False)
sketch5.addConstraint([
    Sketcher.Constraint("Coincident", 0, 1, 1, 2),
    Sketcher.Constraint("Coincident", 1, 1, 2, 2),
    Sketcher.Constraint("Coincident", 2, 1, 3, 2),
    Sketcher.Constraint("Coincident", 3, 1, 0, 2),
    Sketcher.Constraint("Tangent", 4, 1, 5, 2),
    Sketcher.Constraint("Tangent", 5, 1, 6, 2),
    Sketcher.Constraint("Tangent", 6, 1, 7, 2),
    Sketcher.Constraint("Tangent", 7, 1, 4, 2),
    Sketcher.Constraint("Coincident", 8, 1, 9, 2),
    Sketcher.Constraint("Coincident", 9, 1, 10, 2),
    Sketcher.Constraint("Coincident", 10, 1, 11, 2),
    Sketcher.Constraint("Coincident", 11, 1, 8, 2),
    Sketcher.Constraint("Tangent", 12, 1, 13, 2),
    Sketcher.Constraint("Tangent", 13, 1, 14, 2),
    Sketcher.Constraint("Tangent", 14, 1, 15, 2),
    Sketcher.Constraint("Tangent", 15, 1, 12, 2),
    Sketcher.Constraint("Tangent", 16, 1, 17, 2),
    Sketcher.Constraint("Tangent", 17, 1, 18, 2),
    Sketcher.Constraint("Tangent", 18, 1, 19, 2),
    Sketcher.Constraint("Tangent", 19, 1, 16, 2),
    Sketcher.Constraint("Coincident", 20, 1, 21, 2),
    Sketcher.Constraint("Coincident", 21, 1, 22, 2),
    Sketcher.Constraint("Tangent", 22, 1, 23, 2),
    Sketcher.Constraint("Tangent", 23, 1, 20, 2),
    Sketcher.Constraint("Coincident", 24, 1, 25, 2),
    Sketcher.Constraint("Coincident", 25, 1, 26, 2),
    Sketcher.Constraint("Coincident", 26, 1, 27, 2),
    Sketcher.Constraint("Coincident", 27, 1, 24, 2),
    Sketcher.Constraint("Coincident", 28, 1, 29, 2),
    Sketcher.Constraint("Coincident", 29, 1, 30, 2),
    Sketcher.Constraint("Coincident", 30, 1, 31, 2),
    Sketcher.Constraint("Coincident", 31, 1, 28, 2),
    Sketcher.Constraint("Coincident", 32, 1, 33, 2),
    Sketcher.Constraint("Coincident", 33, 1, 34, 2),
    Sketcher.Constraint("Tangent", 34, 1, 35, 2),
    Sketcher.Constraint("Tangent", 35, 1, 32, 2),
    Sketcher.Constraint("Coincident", 36, 1, 37, 2),
    Sketcher.Constraint("Coincident", 37, 1, 38, 2),
    Sketcher.Constraint("Coincident", 38, 1, 39, 2),
    Sketcher.Constraint("Coincident", 39, 1, 36, 2),
    Sketcher.Constraint("Coincident", 40, 1, 41, 2),
    Sketcher.Constraint("Coincident", 41, 1, 42, 2),
    Sketcher.Constraint("Coincident", 42, 1, 43, 2),
    Sketcher.Constraint("Coincident", 43, 1, 40, 2),
    Sketcher.Constraint("Coincident", 44, 1, 45, 2),
    Sketcher.Constraint("Coincident", 45, 1, 46, 2),
    Sketcher.Constraint("Coincident", 46, 1, 47, 2),
    Sketcher.Constraint("Coincident", 47, 1, 44, 2),
    Sketcher.Constraint("Equal", 0, 2),
    Sketcher.Constraint("Equal", 1, 3),
    Sketcher.Constraint("Equal", 4, 6),
    Sketcher.Constraint("Equal", 5, 7),
    Sketcher.Constraint("Equal", 8, 10),
    Sketcher.Constraint("Equal", 12, 14),
    Sketcher.Constraint("Equal", 13, 15),
    Sketcher.Constraint("Equal", 16, 18),
    Sketcher.Constraint("Equal", 17, 19),
    Sketcher.Constraint("Equal", 20, 22),
    Sketcher.Constraint("Equal", 24, 26),
    Sketcher.Constraint("Equal", 25, 27),
    Sketcher.Constraint("Equal", 28, 30),
    Sketcher.Constraint("Equal", 29, 31),
    Sketcher.Constraint("Equal", 32, 34),
    Sketcher.Constraint("Equal", 36, 38),
    Sketcher.Constraint("Equal", 37, 39),
    Sketcher.Constraint("Equal", 40, 42),
    Sketcher.Constraint("Equal", 44, 46),
    Sketcher.Constraint("Equal", 45, 47),
    Sketcher.Constraint("Horizontal", 0, 3, 2, 3),
    Sketcher.Constraint("Horizontal", 4, 3, 6, 3),
    Sketcher.Constraint("Horizontal", 8, 3, 10, 3),
    Sketcher.Constraint("Horizontal", 12, 3, 14, 3),
    Sketcher.Constraint("Horizontal", 16, 3, 18, 3),
    Sketcher.Constraint("Horizontal", 20, 3, 22, 3),
    Sketcher.Constraint("Horizontal", 24, 3, 26, 3),
    Sketcher.Constraint("Horizontal", 28, 3, 30, 3),
    Sketcher.Constraint("Horizontal", 32, 3, 34, 3),
    Sketcher.Constraint("Horizontal", 36, 3, 38, 3),
    Sketcher.Constraint("Horizontal", 41, 3, 43, 3),
    Sketcher.Constraint("Horizontal", 45, 3, 47, 3),
    Sketcher.Constraint("Horizontal", 0, 1, 1, 1),
    Sketcher.Constraint("Horizontal", 2, 1, 3, 1),
    Sketcher.Constraint("Horizontal", 8, 1, 9, 1),
    Sketcher.Constraint("Horizontal", 10, 1, 11, 1),
    Sketcher.Constraint("Horizontal", 20, 1, 21, 1),
    Sketcher.Constraint("Horizontal", 24, 1, 25, 1),
    Sketcher.Constraint("Horizontal", 26, 1, 27, 1),
    Sketcher.Constraint("Horizontal", 28, 1, 29, 1),
    Sketcher.Constraint("Horizontal", 30, 1, 31, 1),
    Sketcher.Constraint("Horizontal", 32, 1, 33, 1),
    Sketcher.Constraint("Horizontal", 36, 1, 37, 1),
    Sketcher.Constraint("Horizontal", 38, 1, 39, 1),
    Sketcher.Constraint("Horizontal", 41, 1, 42, 1),
    Sketcher.Constraint("Horizontal", 40, 1, 43, 1),
    Sketcher.Constraint("Horizontal", 45, 1, 46, 1),
    Sketcher.Constraint("Horizontal", 44, 1, 47, 1),
    Sketcher.Constraint("Vertical", 1, 1, 2, 1),
    Sketcher.Constraint("Vertical", 9, 1, 10, 1),
    Sketcher.Constraint("Vertical", 21, 1, 22, 1),
    Sketcher.Constraint("Vertical", 25, 1, 26, 1),
    Sketcher.Constraint("Vertical", 29, 1, 30, 1),
    Sketcher.Constraint("Vertical", 33, 1, 34, 1),
    Sketcher.Constraint("Vertical", 37, 1, 38, 1),
    Sketcher.Constraint("Vertical", 40, 1, 41, 1),
    Sketcher.Constraint("Vertical", 44, 1, 45, 1),
    Sketcher.Constraint("Radius", 23, Q("0.5888 mm")),
    Sketcher.Constraint("Radius", 24, Q("0.145801 mm")),
    Sketcher.Constraint("Radius", 28, Q("0.1581 mm")),
    Sketcher.Constraint("Radius", 0, Q("0.147021 mm")),
    Sketcher.Constraint("Radius", 1, Q("0.550932 mm")),
    Sketcher.Constraint("Radius", 4, Q("0.229061 mm")),
    Sketcher.Constraint("Radius", 20, Q("0.158391 mm")),
    Sketcher.Constraint("Radius", 43, Q("0.689189 mm")),
    Sketcher.Constraint("Radius", 44, Q("0.177409 mm")),
    Sketcher.Constraint("DistanceX", 0, 3, -1, 1, Q("8.856999 mm")),
    Sketcher.Constraint("Radius", 5, Q("0.863016 mm")),
    Sketcher.Constraint("Radius", 8, Q("0.141287 mm")),
    Sketcher.Constraint("Radius", 9, Q("0.395657 mm")),
    Sketcher.Constraint("Radius", 11, Q("0.395647 mm")),
    Sketcher.Constraint("Radius", 12, Q("0.177283 mm")),
    Sketcher.Constraint("Radius", 13, Q("0.567607 mm")),
    Sketcher.Constraint("Radius", 16, Q("0.203848 mm")),
    Sketcher.Constraint("Radius", 17, Q("0.646235 mm")),
    Sketcher.Constraint("Radius", 21, Q("0.588787 mm")),
    Sketcher.Constraint("Radius", 25, Q("0.581264 mm")),
    Sketcher.Constraint("Radius", 29, Q("0.552984 mm")),
    Sketcher.Constraint("Radius", 32, Q("0.150817 mm")),
    Sketcher.Constraint("Radius", 33, Q("0.579323 mm")),
    Sketcher.Constraint("Radius", 35, Q("0.579335 mm")),
    Sketcher.Constraint("Radius", 36, Q("0.154657 mm")),
    Sketcher.Constraint("Radius", 37, Q("0.652022 mm")),
    Sketcher.Constraint("Radius", 40, Q("0.181856 mm")),
    Sketcher.Constraint("Radius", 41, Q("0.689158 mm")),
    Sketcher.Constraint("Radius", 45, Q("0.684163 mm")),
    Sketcher.Constraint("DistanceX", 5, 3, -1, 1, Q("6.276699 mm")),
    Sketcher.Constraint("DistanceX", 47, 3, -1, 1, Q("8.9828 mm")),
    Sketcher.Constraint("DistanceX", 1, 1, -1, 1, Q("8.335199 mm")),
    Sketcher.Constraint("DistanceY", -1, 1, 4, 1, Q("6.8538 mm")),
    Sketcher.Constraint("DistanceX", 17, 1, -1, 1, Q("5.684698 mm")),
    Sketcher.Constraint("DistanceX", 1, 3, -1, 1, Q("8.636271 mm")),
    Sketcher.Constraint("DistanceY", -1, 1, 1, 3, Q("6.51063 mm")),
    Sketcher.Constraint("DistanceY", -1, 1, 5, 3, Q("6.096412 mm")),
    Sketcher.Constraint("DistanceX", 8, 3, -1, 1, Q("6.18999 mm")),
    Sketcher.Constraint("DistanceY", -1, 1, 8, 3, Q("7.310319 mm")),
    Sketcher.Constraint("DistanceY", -1, 1, 9, 3, Q("7.07825 mm")),
    Sketcher.Constraint("DistanceY", -1, 1, 12, 3, Q("6.989342 mm")),
    Sketcher.Constraint("DistanceY", -1, 1, 15, 3, Q("7.354111 mm")),
    Sketcher.Constraint("DistanceX", 18, 3, -1, 1, Q("5.766359 mm")),
    Sketcher.Constraint("DistanceX", 21, 3, -1, 1, Q("5.32575 mm")),
    Sketcher.Constraint("DistanceX", 24, 3, -1, 1, Q("6.218289 mm")),
    Sketcher.Constraint("DistanceY", -1, 1, 24, 3, Q("8.389249 mm")),
    Sketcher.Constraint("DistanceX", 25, 3, -1, 1, Q("6.04902 mm")),
    Sketcher.Constraint("DistanceY", -1, 1, 29, 3, Q("7.263321 mm")),
    Sketcher.Constraint("DistanceY", -1, 1, 31, 3, Q("7.997009 mm")),
    Sketcher.Constraint("DistanceX", 32, 3, -1, 1, Q("6.168028 mm")),
    Sketcher.Constraint("DistanceX", 33, 3, -1, 1, Q("6.004379 mm")),
    Sketcher.Constraint("DistanceY", -1, 1, 35, 3, Q("8.224641 mm")),
    Sketcher.Constraint("DistanceX", 38, 3, -1, 1, Q("7.175582 mm")),
    Sketcher.Constraint("DistanceY", -1, 1, 39, 3, Q("7.318788 mm")),
    Sketcher.Constraint("DistanceX", 40, 3, -1, 1, Q("7.450619 mm")),
    Sketcher.Constraint("DistanceX", 41, 3, -1, 1, Q("6.959229 mm")),
    Sketcher.Constraint("DistanceY", -1, 1, 41, 3, Q("6.204231 mm")),
    Sketcher.Constraint("DistanceY", -1, 1, 44, 3, Q("6.07685 mm")),
    Sketcher.Constraint("DistanceY", -1, 1, 8, 1, Q("7.439218 mm")),
    Sketcher.Constraint("DistanceX", 12, 1, -1, 1, Q("5.574861 mm")),
    Sketcher.Constraint("DistanceY", -1, 1, 17, 1, Q("9.189032 mm")),
    Sketcher.Constraint("DistanceX", 20, 1, -1, 1, Q("5.54919 mm")),
    Sketcher.Constraint("DistanceY", -1, 1, 22, 1, Q("8.240171 mm")),
    Sketcher.Constraint("DistanceX", 25, 1, -1, 1, Q("5.823078 mm")),
    Sketcher.Constraint("DistanceY", -1, 1, 28, 1, Q("7.777038 mm")),
    Sketcher.Constraint("DistanceX", 36, 1, -1, 1, Q("7.653351 mm")),
    Sketcher.Constraint("DistanceY", -1, 1, 36, 1, Q("7.007089 mm")),
    Sketcher.Constraint("DistanceX", 40, 1, -1, 1, Q("7.62677 mm")),
    Sketcher.Constraint("DistanceX", 44, 1, -1, 1, Q("8.663939 mm")),
    Sketcher.Constraint("DistanceY", -1, 1, 45, 1, Q("6.37495 mm")),
    Sketcher.Constraint("DistanceX", 28, 3, -1, 1, Q("5.446162 mm")),
])
pocket4 = doc.addObject("PartDesign::Pocket", "Pocket003")
body.addObject(pocket4)
pocket4.Profile = sketch5
pocket4.Length = 0.01
pocket4.Reversed = True

doc.recompute()
